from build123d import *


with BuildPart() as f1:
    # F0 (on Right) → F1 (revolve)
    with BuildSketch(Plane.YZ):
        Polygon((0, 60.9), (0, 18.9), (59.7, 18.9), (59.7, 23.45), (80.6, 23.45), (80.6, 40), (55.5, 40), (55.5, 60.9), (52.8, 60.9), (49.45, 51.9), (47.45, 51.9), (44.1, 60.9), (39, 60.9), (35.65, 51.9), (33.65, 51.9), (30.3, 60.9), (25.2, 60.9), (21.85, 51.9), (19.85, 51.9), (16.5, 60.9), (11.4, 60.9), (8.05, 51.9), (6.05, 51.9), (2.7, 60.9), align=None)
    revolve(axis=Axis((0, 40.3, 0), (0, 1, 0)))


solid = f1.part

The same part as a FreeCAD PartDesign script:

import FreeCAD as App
import Part
import Sketcher

V = App.Vector

doc = App.newDocument("Part")
body = doc.addObject("PartDesign::Body", "Body")

# Sketch on YZ plane
sketch1 = doc.addObject("Sketcher::SketchObject", "Sketch")
body.addObject(sketch1)
sketch1.AttachmentSupport = (doc.YZ_Plane, [""])
sketch1.MapMode = "FlatFace"
sketch1.addGeometry([
    Part.LineSegment(V(0, 60.9, 0), V(0, 18.9, 0)),  # 0
    Part.LineSegment(V(0, 18.9, 0), V(59.7, 18.9, 0)),  # 1
    Part.LineSegment(V(59.7, 18.9, 0), V(59.7, 23.4, 0)),  # 2
    Part.LineSegment(V(59.7, 23.4, 0), V(80.6, 23.4, 0)),  # 3
    Part.LineSegment(V(80.6, 23.4, 0), V(80.6, 40, 0)),  # 4
    Part.LineSegment(V(80.6, 40, 0), V(55.5, 40, 0)),  # 5
    Part.LineSegment(V(55.5, 40, 0), V(55.5, 60.9, 0)),  # 6
    Part.LineSegment(V(55.5, 60.9, 0), V(52.8, 60.9, 0)),  # 7
    Part.LineSegment(V(52.8, 60.9, 0), V(49.5, 51.9, 0)),  # 8
    Part.LineSegment(V(49.5, 51.9, 0), V(47.5, 51.9, 0)),  # 9
    Part.LineSegment(V(47.5, 51.9, 0), V(44.1, 60.9, 0)),  # 10
    Part.LineSegment(V(44.1, 60.9, 0), V(39, 60.9, 0)),  # 11
    Part.LineSegment(V(39, 60.9, 0), V(35.6, 51.9, 0)),  # 12
    Part.LineSegment(V(35.6, 51.9, 0), V(33.6, 51.9, 0)),  # 13
    Part.LineSegment(V(33.6, 51.9, 0), V(30.3, 60.9, 0)),  # 14
    Part.LineSegment(V(30.3, 60.9, 0), V(25.2, 60.9, 0)),  # 15
    Part.LineSegment(V(25.2, 60.9, 0), V(21.9, 51.9, 0)),  # 16
    Part.LineSegment(V(21.9, 51.9, 0), V(19.9, 51.9, 0)),  # 17
    Part.LineSegment(V(19.9, 51.9, 0), V(16.5, 60.9, 0)),  # 18
    Part.LineSegment(V(16.5, 60.9, 0), V(11.4, 60.9, 0)),  # 19
    Part.LineSegment(V(11.4, 60.9, 0), V(8.1, 51.9, 0)),  # 20
    Part.LineSegment(V(8.1, 51.9, 0), V(6, 51.9, 0)),  # 21
    Part.LineSegment(V(6, 51.9, 0), V(2.7, 60.9, 0)),  # 22
    Part.LineSegment(V(2.7, 60.9, 0), V(0, 60.9, 0)),  # 23
], False)
sketch1.addConstraint([
    Sketcher.Constraint("Coincident", 0, 2, 1, 1),
    Sketcher.Constraint("Coincident", 1, 2, 2, 1),
    Sketcher.Constraint("Coincident", 2, 2, 3, 1),
    Sketcher.Constraint("Coincident", 3, 2, 4, 1),
    Sketcher.Constraint("Coincident", 4, 2, 5, 1),
    Sketcher.Constraint("Coincident", 5, 2, 6, 1),
    Sketcher.Constraint("Coincident", 6, 2, 7, 1),
    Sketcher.Constraint("Coincident", 7, 2, 8, 1),
    Sketcher.Constraint("Coincident", 8, 2, 9, 1),
    Sketcher.Constraint("Coincident", 9, 2, 10, 1),
    Sketcher.Constraint("Coincident", 10, 2, 11, 1),
    Sketcher.Constraint("Coincident", 11, 2, 12, 1),
    Sketcher.Constraint("Coincident", 12, 2, 13, 1),
    Sketcher.Constraint("Coincident", 13, 2, 14, 1),
    Sketcher.Constraint("Coincident", 14, 2, 15, 1),
    Sketcher.Constraint("Coincident", 15, 2, 16, 1),
    Sketcher.Constraint("Coincident", 16, 2, 17, 1),
    Sketcher.Constraint("Coincident", 17, 2, 18, 1),
    Sketcher.Constraint("Coincident", 18, 2, 19, 1),
    Sketcher.Constraint("Coincident", 19, 2, 20, 1),
    Sketcher.Constraint("Coincident", 20, 2, 21, 1),
    Sketcher.Constraint("Coincident", 21, 2, 22, 1),
    Sketcher.Constraint("Coincident", 22, 2, 23, 1),
    Sketcher.Constraint("Coincident", 23, 2, 0, 1),
    Sketcher.Constraint("Vertical", 0),
    Sketcher.Constraint("Horizontal", 1),
    Sketcher.Constraint("Vertical", 2),
    Sketcher.Constraint("Horizontal", 3),
    Sketcher.Constraint("Vertical", 4),
    Sketcher.Constraint("Horizontal", 5),
    Sketcher.Constraint("Vertical", 6),
    Sketcher.Constraint("Horizontal", 7),
    Sketcher.Constraint("Horizontal", 9),
    Sketcher.Constraint("Horizontal", 11),
    Sketcher.Constraint("Horizontal", 13),
    Sketcher.Constraint("Horizontal", 15),
    Sketcher.Constraint("Horizontal", 17),
    Sketcher.Constraint("Horizontal", 19),
    Sketcher.Constraint("Horizontal", 21),
    Sketcher.Constraint("Horizontal", 23),
    Sketcher.Constraint("PointOnObject", 0, 2, -2),
    Sketcher.Constraint("Parallel", 8, 12),
    Sketcher.Constraint("Parallel", 10, 14),
    Sketcher.Constraint("Parallel", 12, 16),
    Sketcher.Constraint("Parallel", 14, 18),
    Sketcher.Constraint("Parallel", 16, 20),
    Sketcher.Constraint("Parallel", 18, 22),
    Sketcher.Constraint("Horizontal", 7, 2, 10, 2),
    Sketcher.Constraint("Horizontal", 9, 2, 12, 2),
    Sketcher.Constraint("Horizontal", 11, 2, 14, 2),
    Sketcher.Constraint("Horizontal", 13, 2, 16, 2),
    Sketcher.Constraint("Horizontal", 15, 2, 18, 2),
    Sketcher.Constraint("Horizontal", 17, 2, 20, 2),
    Sketcher.Constraint("Horizontal", 19, 2, 22, 2),
    Sketcher.Constraint("Equal", 9, 13),
    Sketcher.Constraint("Equal", 11, 15),
    Sketcher.Constraint("Equal", 13, 17),
    Sketcher.Constraint("Equal", 15, 19),
    Sketcher.Constraint("Equal", 17, 21),
    Sketcher.Constraint("Equal", 7, 23),
    Sketcher.Constraint("Equal", 3, 6),
    Sketcher.Constraint("Equal", 8, 10),
    Sketcher.Constraint("DistanceX", 9, 2, 9, 1, 2.0),
    Sketcher.Constraint("DistanceY", 0, 2, 0, 1, 42.0),
    Sketcher.Constraint("DistanceX", 1, 1, 1, 2, 59.7),
    Sketcher.Constraint("DistanceX", 3, 1, 3, 2, 20.9),
    Sketcher.Constraint("DistanceX", 5, 2, 5, 1, 25.1),
    Sketcher.Constraint("DistanceX", 7, 2, 7, 1, 2.7),
    Sketcher.Constraint("DistanceX", 11, 2, 11, 1, 5.1),
    Sketcher.Constraint("DistanceY", -1, 1, 4, 2, 40.0),
    Sketcher.Constraint("DistanceY", 8, 2, 7, 2, 9.0),
    Sketcher.Constraint("DistanceY", 2, 1, 2, 2, 4.55),
])
revolution = doc.addObject("PartDesign::Revolution", "Revolution")
body.addObject(revolution)
revolution.Profile = sketch1
revolution.ReferenceAxis = (sketch1, ["H_Axis"])
revolution.Angle = 360

doc.recompute()
